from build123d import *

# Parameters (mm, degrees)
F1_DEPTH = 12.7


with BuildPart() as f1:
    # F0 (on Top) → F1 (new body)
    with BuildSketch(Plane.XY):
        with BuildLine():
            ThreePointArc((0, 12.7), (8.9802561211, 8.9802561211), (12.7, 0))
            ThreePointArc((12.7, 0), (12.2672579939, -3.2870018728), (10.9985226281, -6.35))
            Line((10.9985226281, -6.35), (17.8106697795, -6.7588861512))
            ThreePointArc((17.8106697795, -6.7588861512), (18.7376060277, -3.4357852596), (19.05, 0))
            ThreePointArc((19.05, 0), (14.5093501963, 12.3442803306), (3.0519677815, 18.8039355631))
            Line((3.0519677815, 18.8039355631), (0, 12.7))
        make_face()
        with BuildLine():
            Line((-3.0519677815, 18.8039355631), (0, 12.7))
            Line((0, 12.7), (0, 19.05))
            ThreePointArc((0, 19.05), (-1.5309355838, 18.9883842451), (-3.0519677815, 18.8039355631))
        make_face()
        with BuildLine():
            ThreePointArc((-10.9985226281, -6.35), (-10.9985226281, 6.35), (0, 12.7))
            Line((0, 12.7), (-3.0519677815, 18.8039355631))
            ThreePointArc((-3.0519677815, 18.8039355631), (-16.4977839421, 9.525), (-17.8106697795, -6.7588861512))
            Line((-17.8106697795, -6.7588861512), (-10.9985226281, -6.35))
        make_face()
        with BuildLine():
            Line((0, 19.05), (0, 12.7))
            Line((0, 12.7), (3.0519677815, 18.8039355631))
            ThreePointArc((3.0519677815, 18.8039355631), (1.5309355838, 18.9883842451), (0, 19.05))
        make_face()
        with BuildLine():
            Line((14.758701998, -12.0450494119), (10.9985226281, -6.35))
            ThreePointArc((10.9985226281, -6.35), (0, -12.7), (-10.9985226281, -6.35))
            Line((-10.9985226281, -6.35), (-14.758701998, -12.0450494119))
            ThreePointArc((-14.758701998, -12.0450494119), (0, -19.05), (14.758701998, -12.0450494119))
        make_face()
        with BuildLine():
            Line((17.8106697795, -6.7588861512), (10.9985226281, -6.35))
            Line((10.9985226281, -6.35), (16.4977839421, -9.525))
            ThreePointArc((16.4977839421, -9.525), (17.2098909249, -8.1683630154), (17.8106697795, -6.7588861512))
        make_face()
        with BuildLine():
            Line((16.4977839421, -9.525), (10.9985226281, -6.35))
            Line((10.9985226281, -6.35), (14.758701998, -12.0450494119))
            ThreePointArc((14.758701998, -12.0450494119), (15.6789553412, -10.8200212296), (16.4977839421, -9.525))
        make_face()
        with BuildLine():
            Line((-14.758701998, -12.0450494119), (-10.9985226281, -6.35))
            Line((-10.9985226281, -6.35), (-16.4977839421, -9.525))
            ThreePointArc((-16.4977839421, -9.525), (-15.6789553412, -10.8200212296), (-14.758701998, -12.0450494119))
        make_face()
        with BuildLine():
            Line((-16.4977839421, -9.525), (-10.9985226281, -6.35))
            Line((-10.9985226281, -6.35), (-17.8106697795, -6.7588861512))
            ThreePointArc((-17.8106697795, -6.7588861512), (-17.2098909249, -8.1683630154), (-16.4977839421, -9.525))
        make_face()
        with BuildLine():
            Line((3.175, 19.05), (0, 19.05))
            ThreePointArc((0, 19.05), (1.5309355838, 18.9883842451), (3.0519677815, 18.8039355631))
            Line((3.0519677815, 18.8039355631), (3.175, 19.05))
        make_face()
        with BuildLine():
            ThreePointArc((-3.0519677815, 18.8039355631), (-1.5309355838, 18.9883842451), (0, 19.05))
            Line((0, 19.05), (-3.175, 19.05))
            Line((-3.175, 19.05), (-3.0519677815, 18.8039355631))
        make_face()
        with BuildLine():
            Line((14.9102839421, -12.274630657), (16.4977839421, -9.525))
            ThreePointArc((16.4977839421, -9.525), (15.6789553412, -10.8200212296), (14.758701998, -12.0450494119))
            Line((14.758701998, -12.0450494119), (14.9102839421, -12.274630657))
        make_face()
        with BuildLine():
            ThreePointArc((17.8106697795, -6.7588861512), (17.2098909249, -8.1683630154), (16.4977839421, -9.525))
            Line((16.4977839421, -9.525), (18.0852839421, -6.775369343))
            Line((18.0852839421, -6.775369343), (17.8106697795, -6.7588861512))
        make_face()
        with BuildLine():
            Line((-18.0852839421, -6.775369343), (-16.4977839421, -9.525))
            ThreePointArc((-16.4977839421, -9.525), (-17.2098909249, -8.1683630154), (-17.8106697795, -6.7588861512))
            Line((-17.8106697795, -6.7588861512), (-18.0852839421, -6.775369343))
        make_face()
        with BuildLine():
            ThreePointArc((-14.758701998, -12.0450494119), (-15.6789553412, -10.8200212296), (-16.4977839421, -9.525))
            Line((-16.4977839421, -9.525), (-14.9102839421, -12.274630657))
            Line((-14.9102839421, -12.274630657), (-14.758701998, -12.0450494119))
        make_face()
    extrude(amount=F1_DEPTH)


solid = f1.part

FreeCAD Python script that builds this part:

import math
import FreeCAD as App
import Part
import Sketcher

V = App.Vector
Q = App.Units.Quantity

doc = App.newDocument("Part")
body = doc.addObject("PartDesign::Body", "Body")

sketch1 = body.newObject("Sketcher::SketchObject", "Sketch")
sketch1.AttachmentSupport = (doc.getObject("XY_Plane"), [""])
sketch1.MapMode = "FlatFace"
sketch1.addGeometry(Part.ArcOfCircle(Part.Circle(V(0, 0, 0), V(0, 0, 1), 19.05), math.radians(99), math.radians(201)), False)
sketch1.addGeometry(Part.LineSegment(V(-17.81, -6.76, 0), V(-18.09, -6.78, 0)), False)
sketch1.addGeometry(Part.LineSegment(V(-18.09, -6.78, 0), V(-14.91, -12.27, 0)), False)
sketch1.addGeometry(Part.LineSegment(V(-14.91, -12.27, 0), V(-14.76, -12.05, 0)), False)
sketch1.addGeometry(Part.ArcOfCircle(Part.Circle(V(0, 0, 0), V(0, 0, 1), 19.05), math.radians(-141), math.radians(-39)), False)
sketch1.addGeometry(Part.LineSegment(V(14.76, -12.05, 0), V(14.91, -12.27, 0)), False)
sketch1.addGeometry(Part.LineSegment(V(14.91, -12.27, 0), V(18.09, -6.78, 0)), False)
sketch1.addGeometry(Part.LineSegment(V(18.09, -6.78, 0), V(17.81, -6.76, 0)), False)
sketch1.addGeometry(Part.ArcOfCircle(Part.Circle(V(0, 0, 0), V(0, 0, 1), 19.05), math.radians(-21), math.radians(0)), False)
sketch1.addGeometry(Part.ArcOfCircle(Part.Circle(V(0, 0, 0), V(0, 0, 1), 19.05), math.radians(0), math.radians(81)), False)
sketch1.addGeometry(Part.LineSegment(V(3.05, 18.8, 0), V(3.17, 19.05, 0)), False)
sketch1.addGeometry(Part.LineSegment(V(3.17, 19.05, 0), V(-3.17, 19.05, 0)), False)
sketch1.addGeometry(Part.LineSegment(V(-3.17, 19.05, 0), V(-3.05, 18.8, 0)), False)
sketch1.addGeometry(Part.ArcOfCircle(Part.Circle(V(0, 0, 0), V(0, 0, 1), 12.7), math.radians(-150), math.radians(-30)), False)
sketch1.addGeometry(Part.ArcOfCircle(Part.Circle(V(0, 0, 0), V(0, 0, 1), 12.7), math.radians(90), math.radians(210)), False)
sketch1.addGeometry(Part.ArcOfCircle(Part.Circle(V(0, 0, 0), V(0, 0, 1), 12.7), math.radians(0), math.radians(90)), False)
sketch1.addGeometry(Part.ArcOfCircle(Part.Circle(V(0, 0, 0), V(0, 0, 1), 12.7), math.radians(-30), math.radians(0)), False)
sketch1.addConstraint(Sketcher.Constraint("Coincident", 0, 2, 1, 1))
sketch1.addConstraint(Sketcher.Constraint("Coincident", 1, 2, 2, 1))
sketch1.addConstraint(Sketcher.Constraint("Coincident", 2, 2, 3, 1))
sketch1.addConstraint(Sketcher.Constraint("Coincident", 3, 2, 4, 1))
sketch1.addConstraint(Sketcher.Constraint("Coincident", 4, 2, 5, 1))
sketch1.addConstraint(Sketcher.Constraint("Coincident", 5, 2, 6, 1))
sketch1.addConstraint(Sketcher.Constraint("Coincident", 6, 2, 7, 1))
sketch1.addConstraint(Sketcher.Constraint("Coincident", 7, 2, 8, 1))
sketch1.addConstraint(Sketcher.Constraint("Tangent", 8, 2, 9, 1))
sketch1.addConstraint(Sketcher.Constraint("Coincident", 9, 2, 10, 1))
sketch1.addConstraint(Sketcher.Constraint("Coincident", 10, 2, 11, 1))
sketch1.addConstraint(Sketcher.Constraint("Coincident", 11, 2, 12, 1))
sketch1.addConstraint(Sketcher.Constraint("Coincident", 12, 2, 0, 1))
sketch1.addConstraint(Sketcher.Constraint("Tangent", 13, 1, 14, 2))
sketch1.addConstraint(Sketcher.Constraint("Tangent", 14, 1, 15, 2))
sketch1.addConstraint(Sketcher.Constraint("Tangent", 15, 1, 16, 2))
sketch1.addConstraint(Sketcher.Constraint("Tangent", 16, 1, 13, 2))
sketch1.addConstraint(Sketcher.Constraint("Horizontal", 11))
sketch1.addConstraint(Sketcher.Constraint("Coincident", 0, 3, -1, 1))
sketch1.addConstraint(Sketcher.Constraint("Coincident", 4, 3, -1, 1))
sketch1.addConstraint(Sketcher.Constraint("Coincident", 8, 3, -1, 1))
sketch1.addConstraint(Sketcher.Constraint("Coincident", 13, 3, -1, 1))
sketch1.addConstraint(Sketcher.Constraint("Equal", 0, 4))
sketch1.addConstraint(Sketcher.Constraint("Equal", 4, 8))
sketch1.addConstraint(Sketcher.Constraint("Equal", 8, 9))
sketch1.addConstraint(Sketcher.Constraint("Equal", 13, 14))
sketch1.addConstraint(Sketcher.Constraint("Symmetric", 2, 2, 5, 2, -2))
sketch1.addConstraint(Sketcher.Constraint("Symmetric", 1, 2, 6, 2, -2))
sketch1.addConstraint(Sketcher.Constraint("PointOnObject", 8, 2, -1))
sketch1.addConstraint(Sketcher.Constraint("PointOnObject", 14, 1, -2))
sketch1.addConstraint(Sketcher.Constraint("PointOnObject", 15, 1, -1))
sketch1.addConstraint(Sketcher.Constraint("Horizontal", 3, 2, 4, 2))
sketch1.addConstraint(Sketcher.Constraint("Horizontal", 0, 2, 7, 2))
sketch1.addConstraint(Sketcher.Constraint("Horizontal", 9, 2, 12, 2))
sketch1.addConstraint(Sketcher.Constraint("Horizontal", 13, 1, 16, 1))
sketch1.addConstraint(Sketcher.Constraint("Equal", 1, 3))
sketch1.addConstraint(Sketcher.Constraint("Equal", 7, 10))
sketch1.addConstraint(Sketcher.Constraint("Equal", 10, 12))
sketch1.addConstraint(Sketcher.Constraint("Radius", 13, Q("0.5 in")))
sketch1.addConstraint(Sketcher.Constraint("Radius", 0, Q("0.75 in")))
sketch1.addConstraint(Sketcher.Constraint("Angle", 2, Q("-60 deg")))
sketch1.addConstraint(Sketcher.Constraint("DistanceX", 11, 2, 11, 1, Q("0.25 in")))
sketch1.addConstraint(Sketcher.Constraint("Distance", 2, Q("0.25 in")))
sketch1.addConstraint(Sketcher.Constraint("DistanceY", -1, 1, 10, 2, Q("0.75 in")))
sketch1.addConstraint(Sketcher.Constraint("DistanceY", 13, 1, -1, 1, Q("0.25 in")))
sketch1.addConstraint(Sketcher.Constraint("DistanceX", 3, 2, -1, 1, Q("14.758702 mm")))
sketch1.addConstraint(Sketcher.Constraint("Distance", 1, Q("0.275108 mm")))
sketch1.addConstraint(Sketcher.Constraint("DistanceX", 0, 2, -1, 1, Q("17.81067 mm")))
pad1 = body.newObject("PartDesign::Pad", "Pad")
pad1.Profile = sketch1
pad1.Length = Q("0.5 in")

doc.recompute()
